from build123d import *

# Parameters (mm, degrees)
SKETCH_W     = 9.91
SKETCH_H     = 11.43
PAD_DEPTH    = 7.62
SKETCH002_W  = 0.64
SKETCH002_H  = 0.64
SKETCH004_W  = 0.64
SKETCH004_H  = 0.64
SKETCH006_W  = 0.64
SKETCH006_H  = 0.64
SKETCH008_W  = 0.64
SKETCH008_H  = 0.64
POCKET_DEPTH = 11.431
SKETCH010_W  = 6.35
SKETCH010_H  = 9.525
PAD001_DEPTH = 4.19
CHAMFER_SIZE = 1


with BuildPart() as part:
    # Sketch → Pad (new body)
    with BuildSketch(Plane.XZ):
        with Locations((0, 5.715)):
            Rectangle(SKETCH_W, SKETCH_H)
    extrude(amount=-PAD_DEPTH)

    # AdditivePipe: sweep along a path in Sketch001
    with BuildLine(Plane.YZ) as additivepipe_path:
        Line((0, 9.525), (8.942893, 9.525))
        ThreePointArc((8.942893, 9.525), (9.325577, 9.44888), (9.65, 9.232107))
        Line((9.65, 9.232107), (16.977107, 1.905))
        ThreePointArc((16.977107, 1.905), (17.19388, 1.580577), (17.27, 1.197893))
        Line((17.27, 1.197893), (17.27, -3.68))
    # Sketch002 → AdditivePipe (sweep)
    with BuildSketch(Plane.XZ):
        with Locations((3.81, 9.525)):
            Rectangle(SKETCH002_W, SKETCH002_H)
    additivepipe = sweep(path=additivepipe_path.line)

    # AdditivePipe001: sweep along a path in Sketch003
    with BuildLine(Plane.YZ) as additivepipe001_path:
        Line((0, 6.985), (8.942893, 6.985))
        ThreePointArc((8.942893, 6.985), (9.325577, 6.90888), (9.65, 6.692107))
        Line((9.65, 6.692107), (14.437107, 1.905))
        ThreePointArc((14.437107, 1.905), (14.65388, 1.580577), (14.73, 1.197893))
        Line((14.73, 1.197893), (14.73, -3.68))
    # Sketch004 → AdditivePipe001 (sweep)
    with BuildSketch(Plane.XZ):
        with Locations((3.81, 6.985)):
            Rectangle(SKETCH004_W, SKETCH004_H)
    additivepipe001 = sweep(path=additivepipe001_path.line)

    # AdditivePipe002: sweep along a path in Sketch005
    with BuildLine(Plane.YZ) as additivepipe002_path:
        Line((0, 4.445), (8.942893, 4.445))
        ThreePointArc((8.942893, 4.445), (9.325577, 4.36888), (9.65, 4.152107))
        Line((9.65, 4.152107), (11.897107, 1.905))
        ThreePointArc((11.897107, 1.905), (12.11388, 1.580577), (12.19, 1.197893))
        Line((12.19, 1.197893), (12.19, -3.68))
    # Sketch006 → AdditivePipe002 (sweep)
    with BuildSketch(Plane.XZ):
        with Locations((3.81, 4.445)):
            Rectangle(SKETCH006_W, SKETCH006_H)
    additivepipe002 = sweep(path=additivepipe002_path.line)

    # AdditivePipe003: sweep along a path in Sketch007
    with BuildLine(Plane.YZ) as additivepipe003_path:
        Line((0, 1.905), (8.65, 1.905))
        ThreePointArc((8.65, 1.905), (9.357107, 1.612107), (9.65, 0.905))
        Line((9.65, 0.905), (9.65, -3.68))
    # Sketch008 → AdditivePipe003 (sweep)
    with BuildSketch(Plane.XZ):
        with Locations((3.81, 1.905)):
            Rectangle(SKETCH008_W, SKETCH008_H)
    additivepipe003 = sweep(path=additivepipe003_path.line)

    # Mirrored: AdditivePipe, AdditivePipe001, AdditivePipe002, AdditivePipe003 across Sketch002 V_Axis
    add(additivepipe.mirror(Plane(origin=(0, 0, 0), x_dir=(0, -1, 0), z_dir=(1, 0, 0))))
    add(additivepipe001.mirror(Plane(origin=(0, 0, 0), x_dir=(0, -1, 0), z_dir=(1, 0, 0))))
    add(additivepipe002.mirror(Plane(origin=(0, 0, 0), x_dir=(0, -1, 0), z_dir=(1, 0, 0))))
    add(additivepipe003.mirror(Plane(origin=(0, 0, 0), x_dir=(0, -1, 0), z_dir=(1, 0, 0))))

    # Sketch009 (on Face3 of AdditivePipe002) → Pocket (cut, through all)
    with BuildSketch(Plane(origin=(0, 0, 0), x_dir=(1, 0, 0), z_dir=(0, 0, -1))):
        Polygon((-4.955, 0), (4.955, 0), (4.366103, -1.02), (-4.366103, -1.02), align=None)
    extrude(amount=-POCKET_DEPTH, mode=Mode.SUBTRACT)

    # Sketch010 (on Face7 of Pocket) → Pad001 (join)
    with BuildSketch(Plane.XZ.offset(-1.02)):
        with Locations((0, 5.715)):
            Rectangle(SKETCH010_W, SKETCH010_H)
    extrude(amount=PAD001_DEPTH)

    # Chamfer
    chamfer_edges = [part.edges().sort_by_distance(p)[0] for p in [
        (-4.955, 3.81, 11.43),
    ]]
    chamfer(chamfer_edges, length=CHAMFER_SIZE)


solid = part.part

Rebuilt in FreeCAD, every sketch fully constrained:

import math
import FreeCAD as App
import Part
import Sketcher
Q = App.Units.Quantity


def edges_at(feature, points):
    """Names of the edges that pass closest to the given points."""
    edges = feature.Shape.Edges
    near = lambda p: min(range(len(edges)), key=lambda i: edges[i].distToShape(Part.Vertex(*p))[0])
    return sorted({f"Edge{near(p) + 1}" for p in points})


def add_polygon(sketch, points):
    """Adds a closed chain of lines whose ends are joined by coincident constraints."""
    first, n = sketch.GeometryCount, len(points)
    for a, b in zip(points, points[1:] + points[:1]):
        sketch.addGeometry(Part.LineSegment(App.Vector(*a, 0), App.Vector(*b, 0)), False)
    for i in range(n):
        sketch.addConstraint(Sketcher.Constraint("Coincident", first + i, 2, first + (i + 1) % n, 1))

doc = App.newDocument("Part")
body = doc.addObject("PartDesign::Body", "Body")

# Sketch on XZ plane
sketch1 = body.newObject("Sketcher::SketchObject", "Sketch")
sketch1.AttachmentSupport = (doc.getObject("XZ_Plane"), [""])
sketch1.MapMode = "FlatFace"
add_polygon(sketch1, [(-5, 11), (-5, 0), (5, 0), (5, 11)])  # lines 0-3
sketch1.addConstraint([
    Sketcher.Constraint("Vertical", 0),
    Sketcher.Constraint("Horizontal", 1),
    Sketcher.Constraint("Vertical", 2),
    Sketcher.Constraint("Horizontal", 3),
    Sketcher.Constraint("Symmetric", 0, 2, 1, 2, -1, 1),
    Sketcher.Constraint("DistanceY", 0, 2, 0, 1, Q("0.45 in")),
    Sketcher.Constraint("DistanceX", 1, 1, 1, 2, Q("9.91 mm")),
])
pad1 = body.newObject("PartDesign::Pad", "Pad")
pad1.Profile = sketch1
pad1.Length = Q("0.3 in")
pad1.Reversed = True

# Sketch on XZ plane
sketch2 = body.newObject("Sketcher::SketchObject", "Sketch001")
sketch2.AttachmentSupport = (doc.getObject("XZ_Plane"), [""])
sketch2.MapMode = "FlatFace"
add_polygon(sketch2, [(3.5, 9.8), (3.5, 9.2), (4.1, 9.2), (4.1, 9.8)])  # lines 0-3
sketch2.addConstraint([
    Sketcher.Constraint("Vertical", 0),
    Sketcher.Constraint("Horizontal", 1),
    Sketcher.Constraint("Vertical", 2),
    Sketcher.Constraint("Horizontal", 3),
    Sketcher.Constraint("Equal", 3, 0),
    Sketcher.Constraint("DistanceX", 1, 1, 1, 2, Q("0.64 mm")),
    Sketcher.Constraint("DistanceX", -1, 1, 0, 2, Q("3.49 mm")),
    Sketcher.Constraint("DistanceY", -1, 1, 0, 2, Q("9.205 mm")),
])

# Sketch on YZ plane
sketch3 = body.newObject("Sketcher::SketchObject", "Sketch002")
sketch3.AttachmentSupport = (doc.getObject("YZ_Plane"), [""])
sketch3.MapMode = "FlatFace"
sketch3.addGeometry([
    Part.LineSegment(App.Vector(0, 9.5, 0), App.Vector(8.9, 9.5, 0)),  # 0
    Part.ArcOfCircle(Part.Circle(App.Vector(8.9, 8.5, 0), App.Vector(0, 0, 1), 1), math.radians(45), math.radians(90)),  # 1
    Part.LineSegment(App.Vector(9.7, 9.2, 0), App.Vector(17, 1.9, 0)),  # 2
    Part.ArcOfCircle(Part.Circle(App.Vector(16.3, 1.2, 0), App.Vector(0, 0, 1), 1), math.radians(0), math.radians(45)),  # 3
    Part.LineSegment(App.Vector(17.3, 1.2, 0), App.Vector(17.3, -3.7, 0)),  # 4
], False)
sketch3.addConstraint([
    Sketcher.Constraint("Coincident", 0, 2, 1, 2),
    Sketcher.Constraint("Coincident", 1, 1, 2, 1),
    Sketcher.Constraint("Coincident", 2, 2, 3, 2),
    Sketcher.Constraint("Coincident", 3, 1, 4, 1),
    Sketcher.Constraint("Horizontal", 0),
    Sketcher.Constraint("Vertical", 4),
    Sketcher.Constraint("Equal", 1, 3),
    Sketcher.Constraint("PointOnObject", 0, 1, -2),
    Sketcher.Constraint("Angle", 2, Q("-45 deg")),
    Sketcher.Constraint("DistanceY", 2, 2, 0, 2, Q("0.3 in")),
    Sketcher.Constraint("DistanceX", 1, 1, 3, 1, Q("0.3 in")),
    Sketcher.Constraint("DistanceY", -1, 1, 0, 1, Q("0.375 in")),
    Sketcher.Constraint("Radius", 1, Q("0.999994 mm")),
    Sketcher.Constraint("DistanceX", -1, 1, 1, 1, Q("9.65 mm")),
    Sketcher.Constraint("DistanceY", 4, 2, -1, 1, Q("3.68 mm")),
    Sketcher.Constraint("DistanceY", 1, 3, 1, 1, Q("0.707101 mm")),
    Sketcher.Constraint("DistanceX", 0, 1, 0, 2, Q("8.942893 mm")),
    Sketcher.Constraint("DistanceY", 4, 2, 4, 1, Q("4.877893 mm")),
])
doc.recompute()

additivepipe = body.newObject("PartDesign::AdditivePipe", "AdditivePipe")
additivepipe.Profile = sketch2
additivepipe.Spine = (sketch3, ["Edge1", "Edge2", "Edge3", "Edge4", "Edge5"])

# Sketch on XZ plane
sketch4 = body.newObject("Sketcher::SketchObject", "Sketch003")
sketch4.AttachmentSupport = (doc.getObject("XZ_Plane"), [""])
sketch4.MapMode = "FlatFace"
add_polygon(sketch4, [(3.5, 7.3), (3.5, 6.7), (4.1, 6.7), (4.1, 7.3)])  # lines 0-3
sketch4.addConstraint([
    Sketcher.Constraint("Vertical", 0),
    Sketcher.Constraint("Horizontal", 1),
    Sketcher.Constraint("Vertical", 2),
    Sketcher.Constraint("Horizontal", 3),
    Sketcher.Constraint("Equal", 3, 0),
    Sketcher.Constraint("DistanceX", 1, 1, 1, 2, Q("0.64 mm")),
    Sketcher.Constraint("DistanceX", -1, 1, 0, 2, Q("3.49 mm")),
    Sketcher.Constraint("DistanceY", -1, 1, 0, 2, Q("6.665 mm")),
])

# Sketch on YZ plane
sketch5 = body.newObject("Sketcher::SketchObject", "Sketch004")
sketch5.AttachmentSupport = (doc.getObject("YZ_Plane"), [""])
sketch5.MapMode = "FlatFace"
sketch5.addGeometry([
    Part.LineSegment(App.Vector(0, 7, 0), App.Vector(8.9, 7, 0)),  # 0
    Part.ArcOfCircle(Part.Circle(App.Vector(8.9, 6, 0), App.Vector(0, 0, 1), 1), math.radians(45), math.radians(90)),  # 1
    Part.LineSegment(App.Vector(9.7, 6.7, 0), App.Vector(14.4, 1.9, 0)),  # 2
    Part.ArcOfCircle(Part.Circle(App.Vector(13.7, 1.2, 0), App.Vector(0, 0, 1), 1), math.radians(0), math.radians(45)),  # 3
    Part.LineSegment(App.Vector(14.7, 1.2, 0), App.Vector(14.7, -3.7, 0)),  # 4
], False)
sketch5.addConstraint([
    Sketcher.Constraint("Coincident", 0, 2, 1, 2),
    Sketcher.Constraint("Coincident", 1, 1, 2, 1),
    Sketcher.Constraint("Coincident", 2, 2, 3, 2),
    Sketcher.Constraint("Coincident", 3, 1, 4, 1),
    Sketcher.Constraint("Horizontal", 0),
    Sketcher.Constraint("Vertical", 4),
    Sketcher.Constraint("Equal", 1, 3),
    Sketcher.Constraint("PointOnObject", 0, 1, -2),
    Sketcher.Constraint("Angle", 2, Q("-45 deg")),
    Sketcher.Constraint("DistanceY", 2, 2, 0, 2, Q("0.2 in")),
    Sketcher.Constraint("DistanceX", 1, 1, 3, 1, Q("0.2 in")),
    Sketcher.Constraint("DistanceY", -1, 1, 0, 1, Q("0.275 in")),
    Sketcher.Constraint("Radius", 1, Q("0.999994 mm")),
    Sketcher.Constraint("DistanceX", -1, 1, 1, 1, Q("9.65 mm")),
    Sketcher.Constraint("DistanceY", 4, 2, -1, 1, Q("3.68 mm")),
    Sketcher.Constraint("DistanceY", 1, 3, 1, 1, Q("0.707101 mm")),
    Sketcher.Constraint("DistanceX", 0, 1, 0, 2, Q("8.942893 mm")),
    Sketcher.Constraint("DistanceY", 4, 2, 4, 1, Q("4.877893 mm")),
])
doc.recompute()

additivepipe2 = body.newObject("PartDesign::AdditivePipe", "AdditivePipe001")
additivepipe2.Profile = sketch4
additivepipe2.Spine = (sketch5, ["Edge1", "Edge2", "Edge3", "Edge4", "Edge5"])

# Sketch on XZ plane
sketch6 = body.newObject("Sketcher::SketchObject", "Sketch005")
sketch6.AttachmentSupport = (doc.getObject("XZ_Plane"), [""])
sketch6.MapMode = "FlatFace"
add_polygon(sketch6, [(3.5, 4.8), (3.5, 4.1), (4.1, 4.1), (4.1, 4.8)])  # lines 0-3
sketch6.addConstraint([
    Sketcher.Constraint("Vertical", 0),
    Sketcher.Constraint("Horizontal", 1),
    Sketcher.Constraint("Vertical", 2),
    Sketcher.Constraint("Horizontal", 3),
    Sketcher.Constraint("Equal", 3, 0),
    Sketcher.Constraint("DistanceX", 1, 1, 1, 2, Q("0.64 mm")),
    Sketcher.Constraint("DistanceX", -1, 1, 0, 2, Q("3.49 mm")),
    Sketcher.Constraint("DistanceY", -1, 1, 0, 2, Q("4.125 mm")),
])

# Sketch on YZ plane
sketch7 = body.newObject("Sketcher::SketchObject", "Sketch006")
sketch7.AttachmentSupport = (doc.getObject("YZ_Plane"), [""])
sketch7.MapMode = "FlatFace"
sketch7.addGeometry([
    Part.LineSegment(App.Vector(0, 4.4, 0), App.Vector(8.9, 4.4, 0)),  # 0
    Part.ArcOfCircle(Part.Circle(App.Vector(8.9, 3.4, 0), App.Vector(0, 0, 1), 1), math.radians(45), math.radians(90)),  # 1
    Part.LineSegment(App.Vector(9.7, 4.2, 0), App.Vector(11.9, 1.9, 0)),  # 2
    Part.ArcOfCircle(Part.Circle(App.Vector(11.2, 1.2, 0), App.Vector(0, 0, 1), 1), math.radians(0), math.radians(45)),  # 3
    Part.LineSegment(App.Vector(12.2, 1.2, 0), App.Vector(12.2, -3.7, 0)),  # 4
], False)
sketch7.addConstraint([
    Sketcher.Constraint("Coincident", 0, 2, 1, 2),
    Sketcher.Constraint("Coincident", 1, 1, 2, 1),
    Sketcher.Constraint("Coincident", 2, 2, 3, 2),
    Sketcher.Constraint("Coincident", 3, 1, 4, 1),
    Sketcher.Constraint("Horizontal", 0),
    Sketcher.Constraint("Vertical", 4),
    Sketcher.Constraint("Equal", 1, 3),
    Sketcher.Constraint("PointOnObject", 0, 1, -2),
    Sketcher.Constraint("Angle", 2, Q("-45 deg")),
    Sketcher.Constraint("DistanceY", 2, 2, 0, 2, Q("0.1 in")),
    Sketcher.Constraint("DistanceX", 1, 1, 3, 1, Q("0.1 in")),
    Sketcher.Constraint("DistanceY", -1, 1, 0, 1, Q("0.175 in")),
    Sketcher.Constraint("Radius", 1, Q("0.999994 mm")),
    Sketcher.Constraint("DistanceX", -1, 1, 1, 1, Q("9.65 mm")),
    Sketcher.Constraint("DistanceY", 4, 2, -1, 1, Q("3.68 mm")),
    Sketcher.Constraint("DistanceY", 1, 3, 1, 1, Q("0.707101 mm")),
    Sketcher.Constraint("DistanceX", 0, 1, 0, 2, Q("8.942893 mm")),
    Sketcher.Constraint("DistanceY", 4, 2, 4, 1, Q("4.877893 mm")),
])
doc.recompute()

additivepipe3 = body.newObject("PartDesign::AdditivePipe", "AdditivePipe002")
additivepipe3.Profile = sketch6
additivepipe3.Spine = (sketch7, ["Edge1", "Edge2", "Edge3", "Edge4", "Edge5"])

# Sketch on XZ plane
sketch8 = body.newObject("Sketcher::SketchObject", "Sketch007")
sketch8.AttachmentSupport = (doc.getObject("XZ_Plane"), [""])
sketch8.MapMode = "FlatFace"
add_polygon(sketch8, [(3.5, 2.2), (3.5, 1.6), (4.1, 1.6), (4.1, 2.2)])  # lines 0-3
sketch8.addConstraint([
    Sketcher.Constraint("Vertical", 0),
    Sketcher.Constraint("Horizontal", 1),
    Sketcher.Constraint("Vertical", 2),
    Sketcher.Constraint("Horizontal", 3),
    Sketcher.Constraint("Equal", 3, 0),
    Sketcher.Constraint("DistanceX", 1, 1, 1, 2, Q("0.64 mm")),
    Sketcher.Constraint("DistanceX", -1, 1, 0, 2, Q("3.49 mm")),
    Sketcher.Constraint("DistanceY", -1, 1, 0, 2, Q("1.585 mm")),
])

# Sketch on YZ plane
sketch9 = body.newObject("Sketcher::SketchObject", "Sketch008")
sketch9.AttachmentSupport = (doc.getObject("YZ_Plane"), [""])
sketch9.MapMode = "FlatFace"
sketch9.addGeometry([
    Part.LineSegment(App.Vector(0, 1.9, 0), App.Vector(8.7, 1.9, 0)),
    Part.ArcOfCircle(Part.Circle(App.Vector(8.7, 0.9, 0), App.Vector(0, 0, 1), 1), math.radians(0), math.radians(90)),
    Part.LineSegment(App.Vector(9.7, 0.9, 0), App.Vector(9.7, -3.7, 0)),
], False)
sketch9.addConstraint([
    Sketcher.Constraint("Tangent", 0, 2, 1, 2),
    Sketcher.Constraint("Tangent", 1, 1, 2, 1),
    Sketcher.Constraint("Horizontal", 0),
    Sketcher.Constraint("Vertical", 2),
    Sketcher.Constraint("PointOnObject", 0, 1, -2),
    Sketcher.Constraint("Radius", 1, Q("0.999999 mm")),
    Sketcher.Constraint("DistanceY", -1, 1, 0, 1, Q("0.075 in")),
    Sketcher.Constraint("DistanceX", 0, 1, 0, 2, Q("8.65 mm")),
    Sketcher.Constraint("DistanceY", 2, 2, 2, 1, Q("4.585 mm")),
])
doc.recompute()

additivepipe4 = body.newObject("PartDesign::AdditivePipe", "AdditivePipe003")
additivepipe4.Profile = sketch8
additivepipe4.Spine = (sketch9, ["Edge1", "Edge2", "Edge3"])
doc.recompute()

mirrored = body.newObject("PartDesign::Mirrored", "Mirrored")
mirrored.Originals = [additivepipe, additivepipe2, additivepipe3, additivepipe4]
mirrored.MirrorPlane = (doc.getObject("YZ_Plane"), [""])
body.Tip = mirrored

# Sketch on XY plane
sketch10 = body.newObject("Sketcher::SketchObject", "Sketch009")
sketch10.AttachmentSupport = (doc.getObject("XY_Plane"), [""])
sketch10.MapMode = "FlatFace"
add_polygon(sketch10, [(5, 0), (-5, 0), (-4.4, 1), (4.4, 1)])  # lines 0-3
sketch10.addConstraint([
    Sketcher.Constraint("Horizontal", 0),
    Sketcher.Constraint("Horizontal", 2),
    Sketcher.Constraint("Symmetric", 0, 2, 3, 2, -1, 1),
    Sketcher.Constraint("Equal", 1, 3),
    Sketcher.Constraint("Angle", 1, Q("60.000012 deg")),
    Sketcher.Constraint("DistanceX", 0, 2, 0, 1, Q("9.91 mm")),
    Sketcher.Constraint("DistanceY", -1, 1, 1, 2, Q("1.02 mm")),
])
pocket1 = body.newObject("PartDesign::Pocket", "Pocket")
pocket1.Profile = sketch10
pocket1.Type = "ThroughAll"
pocket1.Reversed = True

# Sketch on XZ plane
sketch11 = body.newObject("Sketcher::SketchObject", "Sketch010")
sketch11.AttachmentSupport = (doc.getObject("XZ_Plane"), [""])
sketch11.MapMode = "FlatFace"
sketch11.AttachmentOffset = App.Placement(App.Vector(0, 0, -1.02), App.Rotation())
add_polygon(sketch11, [(-3, 10), (-3, 1), (3, 1), (3, 10)])  # lines 0-3
sketch11.addConstraint([
    Sketcher.Constraint("Vertical", 0),
    Sketcher.Constraint("Horizontal", 1),
    Sketcher.Constraint("Vertical", 2),
    Sketcher.Constraint("Horizontal", 3),
    Sketcher.Constraint("DistanceX", 1, 1, 1, 2, Q("0.25 in")),
    Sketcher.Constraint("DistanceY", 0, 2, 0, 1, Q("0.375 in")),
    Sketcher.Constraint("DistanceX", 0, 2, -1, 1, Q("0.125 in")),
    Sketcher.Constraint("DistanceY", -1, 1, 0, 2, Q("0.0375 in")),
])
pad2 = body.newObject("PartDesign::Pad", "Pad001")
pad2.Profile = sketch11
pad2.Length = 4.19
doc.recompute()

chamfer = body.newObject("PartDesign::Chamfer", "Chamfer")
chamfer.Base = (pad2, edges_at(pad2, [(-4.955, 3.81, 11.43)]))
chamfer.Size = 1

doc.recompute()
